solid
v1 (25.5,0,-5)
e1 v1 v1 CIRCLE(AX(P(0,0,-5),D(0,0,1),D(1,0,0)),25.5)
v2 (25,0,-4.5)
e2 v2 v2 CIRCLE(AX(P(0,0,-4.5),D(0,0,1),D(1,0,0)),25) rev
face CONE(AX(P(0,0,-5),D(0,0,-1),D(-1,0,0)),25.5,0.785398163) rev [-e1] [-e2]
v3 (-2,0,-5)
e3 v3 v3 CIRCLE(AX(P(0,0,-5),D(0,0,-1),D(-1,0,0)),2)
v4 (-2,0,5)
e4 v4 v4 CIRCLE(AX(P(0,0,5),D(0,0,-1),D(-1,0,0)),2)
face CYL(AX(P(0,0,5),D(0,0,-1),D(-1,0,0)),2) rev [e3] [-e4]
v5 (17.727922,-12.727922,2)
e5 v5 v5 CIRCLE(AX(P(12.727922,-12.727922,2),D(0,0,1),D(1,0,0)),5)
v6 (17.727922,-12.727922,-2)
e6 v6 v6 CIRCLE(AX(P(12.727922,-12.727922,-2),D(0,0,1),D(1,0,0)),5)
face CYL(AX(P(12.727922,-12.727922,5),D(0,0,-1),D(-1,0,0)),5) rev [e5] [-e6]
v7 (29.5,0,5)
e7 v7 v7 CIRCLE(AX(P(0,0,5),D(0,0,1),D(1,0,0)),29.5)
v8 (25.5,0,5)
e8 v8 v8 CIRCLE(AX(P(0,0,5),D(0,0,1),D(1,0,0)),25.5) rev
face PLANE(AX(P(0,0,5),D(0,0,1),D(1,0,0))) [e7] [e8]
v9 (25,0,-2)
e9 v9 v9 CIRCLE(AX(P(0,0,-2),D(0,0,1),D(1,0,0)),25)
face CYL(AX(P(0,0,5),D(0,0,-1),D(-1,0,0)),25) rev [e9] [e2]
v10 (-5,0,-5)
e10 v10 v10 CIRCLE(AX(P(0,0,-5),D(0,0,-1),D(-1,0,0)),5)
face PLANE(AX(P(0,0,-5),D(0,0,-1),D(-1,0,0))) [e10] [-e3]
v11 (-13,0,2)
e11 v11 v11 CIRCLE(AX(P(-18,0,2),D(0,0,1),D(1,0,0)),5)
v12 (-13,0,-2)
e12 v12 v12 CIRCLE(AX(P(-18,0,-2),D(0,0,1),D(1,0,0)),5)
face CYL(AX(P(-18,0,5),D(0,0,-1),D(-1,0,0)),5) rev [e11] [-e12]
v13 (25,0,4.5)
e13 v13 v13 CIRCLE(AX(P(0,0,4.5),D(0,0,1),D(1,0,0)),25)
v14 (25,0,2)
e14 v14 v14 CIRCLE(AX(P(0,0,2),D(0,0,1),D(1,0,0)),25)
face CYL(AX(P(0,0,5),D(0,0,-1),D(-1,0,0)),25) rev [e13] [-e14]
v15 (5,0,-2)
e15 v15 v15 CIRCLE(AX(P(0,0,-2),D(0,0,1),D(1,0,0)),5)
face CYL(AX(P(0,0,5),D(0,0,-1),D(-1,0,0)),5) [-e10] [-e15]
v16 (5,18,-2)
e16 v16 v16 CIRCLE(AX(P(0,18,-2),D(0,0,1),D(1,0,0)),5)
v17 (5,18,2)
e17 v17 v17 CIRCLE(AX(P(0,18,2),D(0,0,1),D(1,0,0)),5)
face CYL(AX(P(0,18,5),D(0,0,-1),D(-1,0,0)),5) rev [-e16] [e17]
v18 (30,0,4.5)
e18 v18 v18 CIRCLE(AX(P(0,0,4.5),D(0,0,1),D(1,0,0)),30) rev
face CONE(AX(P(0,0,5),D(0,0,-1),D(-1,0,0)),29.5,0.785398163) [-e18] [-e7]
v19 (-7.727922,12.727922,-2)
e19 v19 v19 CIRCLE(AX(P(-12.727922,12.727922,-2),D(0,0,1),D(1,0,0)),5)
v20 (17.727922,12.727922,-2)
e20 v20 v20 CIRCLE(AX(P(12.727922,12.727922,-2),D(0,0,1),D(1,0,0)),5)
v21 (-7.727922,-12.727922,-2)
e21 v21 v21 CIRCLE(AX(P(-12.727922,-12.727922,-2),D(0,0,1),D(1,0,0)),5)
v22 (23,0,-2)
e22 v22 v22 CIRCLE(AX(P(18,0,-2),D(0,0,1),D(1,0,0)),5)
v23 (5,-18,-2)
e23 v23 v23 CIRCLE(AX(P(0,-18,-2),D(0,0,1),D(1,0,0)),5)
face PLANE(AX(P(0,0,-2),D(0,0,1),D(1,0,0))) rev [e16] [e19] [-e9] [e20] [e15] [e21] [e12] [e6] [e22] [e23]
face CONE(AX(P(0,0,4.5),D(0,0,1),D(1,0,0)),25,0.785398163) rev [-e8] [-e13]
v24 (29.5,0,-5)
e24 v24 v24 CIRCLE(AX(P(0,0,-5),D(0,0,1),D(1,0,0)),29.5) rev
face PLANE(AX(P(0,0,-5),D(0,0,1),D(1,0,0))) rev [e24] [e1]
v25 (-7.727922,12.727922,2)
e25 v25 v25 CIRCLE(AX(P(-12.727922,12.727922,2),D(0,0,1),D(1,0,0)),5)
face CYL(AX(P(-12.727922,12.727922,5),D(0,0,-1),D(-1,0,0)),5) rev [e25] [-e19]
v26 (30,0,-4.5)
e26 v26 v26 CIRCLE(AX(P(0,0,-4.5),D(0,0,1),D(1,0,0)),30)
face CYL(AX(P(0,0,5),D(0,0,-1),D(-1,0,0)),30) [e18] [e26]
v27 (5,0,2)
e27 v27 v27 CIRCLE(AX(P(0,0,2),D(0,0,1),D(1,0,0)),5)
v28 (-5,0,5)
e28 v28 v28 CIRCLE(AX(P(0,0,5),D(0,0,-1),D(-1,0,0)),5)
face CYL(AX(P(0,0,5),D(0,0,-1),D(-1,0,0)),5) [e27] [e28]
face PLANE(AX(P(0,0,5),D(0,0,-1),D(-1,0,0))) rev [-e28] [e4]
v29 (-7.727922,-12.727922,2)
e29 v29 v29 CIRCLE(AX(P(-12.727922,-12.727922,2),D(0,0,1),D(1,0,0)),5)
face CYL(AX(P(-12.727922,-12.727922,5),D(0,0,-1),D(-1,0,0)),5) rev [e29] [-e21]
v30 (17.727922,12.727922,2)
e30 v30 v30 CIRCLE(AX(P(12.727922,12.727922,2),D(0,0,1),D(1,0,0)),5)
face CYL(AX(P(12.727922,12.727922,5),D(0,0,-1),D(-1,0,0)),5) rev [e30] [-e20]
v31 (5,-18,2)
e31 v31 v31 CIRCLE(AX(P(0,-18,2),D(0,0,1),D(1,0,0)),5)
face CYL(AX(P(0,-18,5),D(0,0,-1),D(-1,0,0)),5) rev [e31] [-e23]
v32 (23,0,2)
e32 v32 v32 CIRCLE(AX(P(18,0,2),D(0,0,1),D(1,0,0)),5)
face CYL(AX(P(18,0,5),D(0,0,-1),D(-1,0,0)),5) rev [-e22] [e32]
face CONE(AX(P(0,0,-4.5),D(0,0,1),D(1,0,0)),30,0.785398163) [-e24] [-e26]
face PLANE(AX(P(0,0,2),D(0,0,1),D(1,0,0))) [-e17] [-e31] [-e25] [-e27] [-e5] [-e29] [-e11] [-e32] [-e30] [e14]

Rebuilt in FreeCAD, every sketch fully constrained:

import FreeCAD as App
import Part
import Sketcher

V = App.Vector
Q = App.Units.Quantity


def edges_at(feature, points):
    """Names of the edges that pass closest to the given points."""
    edges = feature.Shape.Edges
    near = lambda p: min(range(len(edges)), key=lambda i: edges[i].distToShape(Part.Vertex(*p))[0])
    return sorted({f"Edge{near(p) + 1}" for p in points})

doc = App.newDocument("Part")
body = doc.addObject("PartDesign::Body", "Body")

sketch1 = body.newObject("Sketcher::SketchObject", "Sketch")
sketch1.AttachmentSupport = (doc.getObject("XY_Plane"), [""])
sketch1.MapMode = "FlatFace"
sketch1.addGeometry(Part.Circle(V(0, 0, 0), V(0, 0, 1), 30), False)
sketch1.addGeometry(Part.Circle(V(0, 0, 0), V(0, 0, 1), 25), False)
sketch1.addConstraint(Sketcher.Constraint("Coincident", 0, 3, -1, 1))
sketch1.addConstraint(Sketcher.Constraint("Coincident", 1, 3, -1, 1))
sketch1.addConstraint(Sketcher.Constraint("Diameter", 0, Q("60 mm")))
sketch1.addConstraint(Sketcher.Constraint("Diameter", 1, Q("50 mm")))
pad1 = body.newObject("PartDesign::Pad", "Pad")
pad1.Profile = sketch1
pad1.Length = 10
pad1.Midplane = True

sketch2 = body.newObject("Sketcher::SketchObject", "Sketch001")
sketch2.AttachmentSupport = (doc.getObject("XY_Plane"), [""])
sketch2.MapMode = "FlatFace"
sketch2.addGeometry(Part.Circle(V(0, 0, 0), V(0, 0, 1), 25), False)
sketch2.addConstraint(Sketcher.Constraint("Coincident", 0, 3, -1, 1))
sketch2.addConstraint(Sketcher.Constraint("Diameter", 0, Q("50 mm")))
pad2 = body.newObject("PartDesign::Pad", "Pad001")
pad2.Profile = sketch2
pad2.Length = 4
pad2.Midplane = True

sketch3 = body.newObject("Sketcher::SketchObject", "Sketch002")
sketch3.AttachmentSupport = (doc.getObject("XY_Plane"), [""])
sketch3.MapMode = "FlatFace"
sketch3.addGeometry(Part.Circle(V(0, 0, 0), V(0, 0, 1), 5), False)
sketch3.addConstraint(Sketcher.Constraint("Coincident", 0, 3, -1, 1))
sketch3.addConstraint(Sketcher.Constraint("Diameter", 0, Q("10 mm")))
pocket1 = body.newObject("PartDesign::Pocket", "Pocket")
pocket1.Profile = sketch3
pocket1.Type = "ThroughAll"
pocket1.Midplane = True

sketch4 = body.newObject("Sketcher::SketchObject", "Sketch003")
sketch4.AttachmentSupport = (doc.getObject("XY_Plane"), [""])
sketch4.MapMode = "FlatFace"
sketch4.AttachmentOffset = App.Placement(V(0, 0, -2), App.Rotation())
sketch4.addGeometry(Part.Circle(V(0, 0, 0), V(0, 0, 1), 5), False)
sketch4.addGeometry(Part.Circle(V(0, 0, 0), V(0, 0, 1), 2), False)
sketch4.addConstraint(Sketcher.Constraint("Coincident", 0, 3, -1, 1))
sketch4.addConstraint(Sketcher.Constraint("Coincident", 1, 3, -1, 1))
sketch4.addConstraint(Sketcher.Constraint("Diameter", 0, Q("10 mm")))
sketch4.addConstraint(Sketcher.Constraint("Diameter", 1, Q("4 mm")))
pad3 = body.newObject("PartDesign::Pad", "Pad002")
pad3.Profile = sketch4
pad3.Type = "TwoLengths"
pad3.Length = 3
pad3.Length2 = 7
pad3.Reversed = True

sketch5 = body.newObject("Sketcher::SketchObject", "Sketch004")
sketch5.AttachmentSupport = (doc.getObject("XY_Plane"), [""])
sketch5.MapMode = "FlatFace"
sketch5.AttachmentOffset = App.Placement(V(0, 0, -2), App.Rotation())
sketch5.addGeometry(Part.Circle(V(0, 18, 0), V(0, 0, 1), 5), False)
sketch5.addGeometry(Part.Circle(V(-13, 13, 0), V(0, 0, 1), 5), False)
sketch5.addGeometry(Part.Circle(V(-18, 0, 0), V(0, 0, 1), 5), False)
sketch5.addGeometry(Part.Circle(V(-13, -13, 0), V(0, 0, 1), 5), False)
sketch5.addGeometry(Part.Circle(V(0, -18, 0), V(0, 0, 1), 5), False)
sketch5.addGeometry(Part.Circle(V(13, -13, 0), V(0, 0, 1), 5), False)
sketch5.addGeometry(Part.Circle(V(18, 0, 0), V(0, 0, 1), 5), False)
sketch5.addGeometry(Part.Circle(V(13, 13, 0), V(0, 0, 1), 5), False)
sketch5.addConstraint(Sketcher.Constraint("Equal", 0, 1))
sketch5.addConstraint(Sketcher.Constraint("Equal", 1, 2))
sketch5.addConstraint(Sketcher.Constraint("Equal", 2, 3))
sketch5.addConstraint(Sketcher.Constraint("Equal", 3, 4))
sketch5.addConstraint(Sketcher.Constraint("Equal", 4, 5))
sketch5.addConstraint(Sketcher.Constraint("Equal", 5, 6))
sketch5.addConstraint(Sketcher.Constraint("Equal", 6, 7))
sketch5.addConstraint(Sketcher.Constraint("Symmetric", 0, 3, 4, 3, -1, 1))
sketch5.addConstraint(Sketcher.Constraint("Symmetric", 1, 3, 5, 3, -1, 1))
sketch5.addConstraint(Sketcher.Constraint("Symmetric", 2, 3, 6, 3, -1, 1))
sketch5.addConstraint(Sketcher.Constraint("Symmetric", 3, 3, 7, 3, -1, 1))
sketch5.addConstraint(Sketcher.Constraint("Symmetric", 3, 3, 5, 3, -2))
sketch5.addConstraint(Sketcher.Constraint("PointOnObject", 0, 3, -2))
sketch5.addConstraint(Sketcher.Constraint("PointOnObject", 2, 3, -1))
sketch5.addConstraint(Sketcher.Constraint("Diameter", 0, Q("10 mm")))
sketch5.addConstraint(Sketcher.Constraint("DistanceY", -1, 1, 0, 3, Q("18 mm")))
sketch5.addConstraint(Sketcher.Constraint("DistanceX", 2, 3, -1, 1, Q("18 mm")))
sketch5.addConstraint(Sketcher.Constraint("DistanceX", 1, 3, -1, 1, Q("12.727922 mm")))
sketch5.addConstraint(Sketcher.Constraint("DistanceY", -1, 1, 1, 3, Q("12.727922 mm")))
pocket2 = body.newObject("PartDesign::Pocket", "Pocket001")
pocket2.Profile = sketch5
pocket2.Type = "ThroughAll"
pocket2.Midplane = True
doc.recompute()

chamfer = body.newObject("PartDesign::Chamfer", "Chamfer")
chamfer.Base = (pocket2, edges_at(pocket2, [
    (-30, 0, -5),
    (-30, 0, 5),
    (-25, 0, -5),
    (-25, 0, 5),
]))
chamfer.Size = 0.5

doc.recompute()
